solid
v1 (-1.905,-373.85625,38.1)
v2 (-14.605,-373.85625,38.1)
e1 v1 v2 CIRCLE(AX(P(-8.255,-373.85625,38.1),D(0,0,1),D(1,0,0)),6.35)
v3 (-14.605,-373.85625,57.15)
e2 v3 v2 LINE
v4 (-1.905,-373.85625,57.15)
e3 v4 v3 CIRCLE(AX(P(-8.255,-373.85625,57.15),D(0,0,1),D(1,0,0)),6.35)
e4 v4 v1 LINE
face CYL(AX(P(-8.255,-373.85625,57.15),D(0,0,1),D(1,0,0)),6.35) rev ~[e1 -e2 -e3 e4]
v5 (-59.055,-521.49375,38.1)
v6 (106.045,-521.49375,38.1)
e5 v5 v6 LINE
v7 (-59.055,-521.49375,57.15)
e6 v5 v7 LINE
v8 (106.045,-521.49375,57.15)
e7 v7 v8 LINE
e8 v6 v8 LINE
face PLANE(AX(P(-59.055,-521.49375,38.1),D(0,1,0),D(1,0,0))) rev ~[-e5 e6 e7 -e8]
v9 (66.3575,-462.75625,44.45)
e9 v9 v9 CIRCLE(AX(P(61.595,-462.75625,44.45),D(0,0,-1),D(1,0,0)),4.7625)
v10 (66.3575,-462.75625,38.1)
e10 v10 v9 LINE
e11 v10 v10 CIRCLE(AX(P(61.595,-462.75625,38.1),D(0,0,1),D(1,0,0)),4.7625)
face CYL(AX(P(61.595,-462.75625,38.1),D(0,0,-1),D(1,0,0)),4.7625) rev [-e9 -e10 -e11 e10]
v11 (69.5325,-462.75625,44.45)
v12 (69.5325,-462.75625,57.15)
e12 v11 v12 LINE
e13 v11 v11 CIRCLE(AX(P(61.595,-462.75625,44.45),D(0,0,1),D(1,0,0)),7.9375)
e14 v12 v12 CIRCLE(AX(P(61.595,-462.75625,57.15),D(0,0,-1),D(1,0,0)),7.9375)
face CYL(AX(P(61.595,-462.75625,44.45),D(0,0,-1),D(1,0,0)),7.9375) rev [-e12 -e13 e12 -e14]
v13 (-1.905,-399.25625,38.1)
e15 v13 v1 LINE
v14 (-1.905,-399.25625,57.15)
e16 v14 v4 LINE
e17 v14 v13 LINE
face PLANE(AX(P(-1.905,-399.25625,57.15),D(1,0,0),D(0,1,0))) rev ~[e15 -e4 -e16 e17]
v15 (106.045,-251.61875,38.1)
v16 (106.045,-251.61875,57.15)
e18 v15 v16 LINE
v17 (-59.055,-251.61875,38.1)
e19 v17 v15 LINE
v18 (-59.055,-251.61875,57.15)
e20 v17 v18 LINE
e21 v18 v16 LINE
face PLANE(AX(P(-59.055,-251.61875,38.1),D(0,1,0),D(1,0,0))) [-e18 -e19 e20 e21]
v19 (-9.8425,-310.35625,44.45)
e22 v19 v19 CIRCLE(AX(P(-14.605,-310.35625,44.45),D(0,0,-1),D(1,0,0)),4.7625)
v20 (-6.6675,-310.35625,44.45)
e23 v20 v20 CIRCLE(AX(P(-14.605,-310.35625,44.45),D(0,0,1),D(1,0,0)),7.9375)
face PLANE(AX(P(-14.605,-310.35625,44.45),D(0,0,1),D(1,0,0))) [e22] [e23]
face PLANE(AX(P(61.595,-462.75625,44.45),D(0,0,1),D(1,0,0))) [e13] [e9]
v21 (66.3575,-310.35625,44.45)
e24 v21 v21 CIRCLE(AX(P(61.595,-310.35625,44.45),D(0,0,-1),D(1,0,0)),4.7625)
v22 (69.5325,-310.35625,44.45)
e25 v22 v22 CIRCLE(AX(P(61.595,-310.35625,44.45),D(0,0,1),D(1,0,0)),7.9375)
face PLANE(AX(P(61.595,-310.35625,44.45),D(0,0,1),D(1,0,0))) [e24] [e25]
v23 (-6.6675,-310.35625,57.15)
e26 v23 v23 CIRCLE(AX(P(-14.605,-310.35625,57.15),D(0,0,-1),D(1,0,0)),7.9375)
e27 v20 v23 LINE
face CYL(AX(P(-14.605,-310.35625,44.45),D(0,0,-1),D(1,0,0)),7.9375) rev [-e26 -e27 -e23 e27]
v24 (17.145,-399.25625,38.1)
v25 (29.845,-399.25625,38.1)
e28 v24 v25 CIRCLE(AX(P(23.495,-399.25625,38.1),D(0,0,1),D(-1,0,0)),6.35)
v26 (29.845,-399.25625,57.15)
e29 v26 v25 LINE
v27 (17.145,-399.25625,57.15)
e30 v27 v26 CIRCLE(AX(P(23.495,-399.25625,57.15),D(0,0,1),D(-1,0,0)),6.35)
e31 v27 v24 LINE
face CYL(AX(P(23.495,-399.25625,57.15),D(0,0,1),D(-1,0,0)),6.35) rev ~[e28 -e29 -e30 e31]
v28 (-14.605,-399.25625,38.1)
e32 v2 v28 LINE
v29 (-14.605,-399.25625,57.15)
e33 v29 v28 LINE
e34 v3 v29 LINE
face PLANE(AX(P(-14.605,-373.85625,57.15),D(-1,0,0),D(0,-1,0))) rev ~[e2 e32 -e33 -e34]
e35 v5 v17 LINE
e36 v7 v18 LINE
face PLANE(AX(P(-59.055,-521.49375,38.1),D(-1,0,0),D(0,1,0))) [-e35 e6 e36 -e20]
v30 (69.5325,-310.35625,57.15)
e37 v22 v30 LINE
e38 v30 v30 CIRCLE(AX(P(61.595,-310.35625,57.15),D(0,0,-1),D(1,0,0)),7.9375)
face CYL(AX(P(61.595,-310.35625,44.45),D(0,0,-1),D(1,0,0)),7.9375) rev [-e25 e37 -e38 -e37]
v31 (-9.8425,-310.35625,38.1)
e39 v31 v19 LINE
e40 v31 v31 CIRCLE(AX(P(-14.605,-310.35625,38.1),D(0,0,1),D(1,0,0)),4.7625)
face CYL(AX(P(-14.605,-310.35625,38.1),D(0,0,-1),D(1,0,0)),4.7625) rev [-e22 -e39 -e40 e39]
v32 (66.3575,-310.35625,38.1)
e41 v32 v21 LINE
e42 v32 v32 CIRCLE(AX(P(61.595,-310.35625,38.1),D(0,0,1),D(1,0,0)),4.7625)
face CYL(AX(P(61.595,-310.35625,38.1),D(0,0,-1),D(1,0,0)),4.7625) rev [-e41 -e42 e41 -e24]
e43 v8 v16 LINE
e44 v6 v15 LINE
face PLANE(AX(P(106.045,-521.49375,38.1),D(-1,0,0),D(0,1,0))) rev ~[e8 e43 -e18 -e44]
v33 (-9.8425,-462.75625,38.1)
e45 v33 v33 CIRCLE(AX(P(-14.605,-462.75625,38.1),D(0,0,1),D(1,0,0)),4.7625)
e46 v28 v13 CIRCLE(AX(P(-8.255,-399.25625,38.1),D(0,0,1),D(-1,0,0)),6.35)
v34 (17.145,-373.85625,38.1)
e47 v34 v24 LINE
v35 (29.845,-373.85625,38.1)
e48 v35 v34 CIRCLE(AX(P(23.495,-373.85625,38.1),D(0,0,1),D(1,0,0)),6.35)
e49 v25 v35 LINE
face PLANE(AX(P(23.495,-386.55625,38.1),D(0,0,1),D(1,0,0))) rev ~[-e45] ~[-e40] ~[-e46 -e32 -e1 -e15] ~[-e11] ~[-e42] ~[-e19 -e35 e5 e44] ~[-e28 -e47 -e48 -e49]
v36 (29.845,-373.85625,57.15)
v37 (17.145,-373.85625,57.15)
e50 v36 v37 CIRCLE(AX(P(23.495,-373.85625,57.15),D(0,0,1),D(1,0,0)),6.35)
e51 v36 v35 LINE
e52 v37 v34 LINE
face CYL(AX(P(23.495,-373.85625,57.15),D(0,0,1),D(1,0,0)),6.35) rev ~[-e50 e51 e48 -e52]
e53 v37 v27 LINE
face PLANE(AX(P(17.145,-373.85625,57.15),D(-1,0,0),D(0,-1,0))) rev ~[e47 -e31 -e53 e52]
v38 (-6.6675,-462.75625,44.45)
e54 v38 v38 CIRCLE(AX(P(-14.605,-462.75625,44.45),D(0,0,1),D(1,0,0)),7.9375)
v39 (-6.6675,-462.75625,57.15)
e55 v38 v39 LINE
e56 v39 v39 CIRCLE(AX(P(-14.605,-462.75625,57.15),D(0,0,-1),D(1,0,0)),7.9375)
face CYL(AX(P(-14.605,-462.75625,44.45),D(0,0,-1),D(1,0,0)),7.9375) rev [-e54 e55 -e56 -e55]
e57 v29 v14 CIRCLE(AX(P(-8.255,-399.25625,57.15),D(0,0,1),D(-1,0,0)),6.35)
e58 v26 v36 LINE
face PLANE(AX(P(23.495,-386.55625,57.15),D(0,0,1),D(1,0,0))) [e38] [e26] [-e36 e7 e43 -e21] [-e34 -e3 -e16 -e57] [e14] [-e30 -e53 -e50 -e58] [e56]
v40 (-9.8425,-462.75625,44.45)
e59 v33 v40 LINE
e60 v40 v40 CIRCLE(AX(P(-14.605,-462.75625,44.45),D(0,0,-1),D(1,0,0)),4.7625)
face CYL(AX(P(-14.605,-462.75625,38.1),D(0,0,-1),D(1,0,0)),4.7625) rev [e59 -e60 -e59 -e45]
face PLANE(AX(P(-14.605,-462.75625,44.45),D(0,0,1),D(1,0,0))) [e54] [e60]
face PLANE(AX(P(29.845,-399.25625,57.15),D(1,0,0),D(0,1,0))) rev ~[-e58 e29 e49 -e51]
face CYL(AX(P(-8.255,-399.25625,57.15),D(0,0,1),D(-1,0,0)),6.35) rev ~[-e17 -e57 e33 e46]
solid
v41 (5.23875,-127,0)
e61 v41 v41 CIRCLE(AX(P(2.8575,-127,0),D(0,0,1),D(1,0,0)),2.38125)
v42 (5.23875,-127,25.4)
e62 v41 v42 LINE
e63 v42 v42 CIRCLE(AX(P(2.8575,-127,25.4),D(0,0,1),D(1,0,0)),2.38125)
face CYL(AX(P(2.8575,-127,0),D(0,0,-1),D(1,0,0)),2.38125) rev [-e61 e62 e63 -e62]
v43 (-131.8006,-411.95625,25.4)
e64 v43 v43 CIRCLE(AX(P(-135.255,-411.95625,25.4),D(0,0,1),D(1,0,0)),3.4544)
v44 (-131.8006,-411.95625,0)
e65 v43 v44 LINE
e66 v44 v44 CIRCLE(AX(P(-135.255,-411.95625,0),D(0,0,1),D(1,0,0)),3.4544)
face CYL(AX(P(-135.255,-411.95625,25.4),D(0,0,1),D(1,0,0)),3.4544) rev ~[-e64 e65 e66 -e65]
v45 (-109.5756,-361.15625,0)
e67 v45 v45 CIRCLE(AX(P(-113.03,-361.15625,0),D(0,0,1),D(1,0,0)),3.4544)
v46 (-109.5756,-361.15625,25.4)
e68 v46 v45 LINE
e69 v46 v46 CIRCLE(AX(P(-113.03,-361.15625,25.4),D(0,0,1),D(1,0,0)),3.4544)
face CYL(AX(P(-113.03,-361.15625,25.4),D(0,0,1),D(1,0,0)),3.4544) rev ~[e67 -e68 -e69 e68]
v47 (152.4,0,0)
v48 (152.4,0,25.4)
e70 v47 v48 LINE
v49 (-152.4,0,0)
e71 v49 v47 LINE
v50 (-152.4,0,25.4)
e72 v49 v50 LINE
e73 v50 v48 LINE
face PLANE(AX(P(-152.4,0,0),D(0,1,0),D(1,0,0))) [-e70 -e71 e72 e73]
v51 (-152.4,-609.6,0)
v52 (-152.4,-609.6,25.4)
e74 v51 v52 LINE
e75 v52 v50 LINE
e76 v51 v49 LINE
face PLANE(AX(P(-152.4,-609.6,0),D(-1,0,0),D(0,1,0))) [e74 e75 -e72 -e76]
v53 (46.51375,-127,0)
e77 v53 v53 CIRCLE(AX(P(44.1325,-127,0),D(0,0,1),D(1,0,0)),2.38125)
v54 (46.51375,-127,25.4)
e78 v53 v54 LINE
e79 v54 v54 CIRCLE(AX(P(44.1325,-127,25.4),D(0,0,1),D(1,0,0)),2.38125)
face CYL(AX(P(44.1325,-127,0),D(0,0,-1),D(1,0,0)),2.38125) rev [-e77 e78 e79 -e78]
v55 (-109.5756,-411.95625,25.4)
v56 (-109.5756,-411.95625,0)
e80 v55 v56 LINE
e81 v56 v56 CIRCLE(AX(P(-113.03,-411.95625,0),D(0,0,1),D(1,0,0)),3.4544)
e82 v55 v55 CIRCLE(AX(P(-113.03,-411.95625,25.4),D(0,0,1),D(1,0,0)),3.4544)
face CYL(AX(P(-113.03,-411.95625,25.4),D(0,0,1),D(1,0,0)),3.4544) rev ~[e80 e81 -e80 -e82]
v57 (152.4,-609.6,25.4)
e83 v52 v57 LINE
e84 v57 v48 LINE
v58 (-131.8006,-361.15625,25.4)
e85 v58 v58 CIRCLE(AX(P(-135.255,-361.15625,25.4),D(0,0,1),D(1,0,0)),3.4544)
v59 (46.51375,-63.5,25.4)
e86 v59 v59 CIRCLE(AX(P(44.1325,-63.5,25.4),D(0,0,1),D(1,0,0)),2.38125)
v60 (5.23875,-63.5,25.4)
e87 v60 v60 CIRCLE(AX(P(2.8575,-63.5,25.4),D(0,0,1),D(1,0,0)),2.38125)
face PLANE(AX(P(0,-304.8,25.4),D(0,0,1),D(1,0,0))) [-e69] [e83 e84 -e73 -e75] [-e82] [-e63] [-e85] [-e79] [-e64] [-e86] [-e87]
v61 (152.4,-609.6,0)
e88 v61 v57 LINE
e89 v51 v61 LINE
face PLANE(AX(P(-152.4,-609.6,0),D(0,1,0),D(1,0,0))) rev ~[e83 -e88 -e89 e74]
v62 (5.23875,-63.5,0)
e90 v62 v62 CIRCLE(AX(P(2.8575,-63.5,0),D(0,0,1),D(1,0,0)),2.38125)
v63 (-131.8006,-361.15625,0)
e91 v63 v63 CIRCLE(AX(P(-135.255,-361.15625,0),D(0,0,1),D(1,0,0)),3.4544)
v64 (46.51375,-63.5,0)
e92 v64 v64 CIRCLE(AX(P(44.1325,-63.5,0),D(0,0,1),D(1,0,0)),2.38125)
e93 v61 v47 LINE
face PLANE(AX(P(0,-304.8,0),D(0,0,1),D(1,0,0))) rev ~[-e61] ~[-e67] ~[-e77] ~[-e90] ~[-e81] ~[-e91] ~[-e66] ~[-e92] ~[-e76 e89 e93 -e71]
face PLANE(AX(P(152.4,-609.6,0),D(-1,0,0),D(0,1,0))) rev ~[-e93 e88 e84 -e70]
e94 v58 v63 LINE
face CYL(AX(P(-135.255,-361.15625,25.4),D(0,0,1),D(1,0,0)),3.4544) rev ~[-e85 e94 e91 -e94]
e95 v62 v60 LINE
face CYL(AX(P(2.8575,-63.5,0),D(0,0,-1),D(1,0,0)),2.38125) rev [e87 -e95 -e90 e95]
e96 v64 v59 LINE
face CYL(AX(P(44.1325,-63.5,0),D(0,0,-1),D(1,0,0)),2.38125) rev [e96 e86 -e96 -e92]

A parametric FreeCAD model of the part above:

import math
import FreeCAD as App
import Part
import Sketcher
Q = App.Units.Quantity


def add_polygon(sketch, points):
    """Adds a closed chain of lines whose ends are joined by coincident constraints."""
    first, n = sketch.GeometryCount, len(points)
    for a, b in zip(points, points[1:] + points[:1]):
        sketch.addGeometry(Part.LineSegment(App.Vector(*a, 0), App.Vector(*b, 0)), False)
    for i in range(n):
        sketch.addConstraint(Sketcher.Constraint("Coincident", first + i, 2, first + (i + 1) % n, 1))

doc = App.newDocument("Part")
body = doc.addObject("PartDesign::Body", "Body")

sketch1 = body.newObject("Sketcher::SketchObject", "Sketch")
sketch1.AttachmentSupport = (doc.getObject("XY_Plane"), [""])
sketch1.MapMode = "FlatFace"
add_polygon(sketch1, [(-152.4, 0), (-152.4, -609.6), (152.4, -609.6), (152.4, 0)])
sketch1.addGeometry(Part.Circle(App.Vector(2.9, -127, 0), App.Vector(0, 0, 1), 2.4), False)
sketch1.addGeometry(Part.Circle(App.Vector(44.1, -127, 0), App.Vector(0, 0, 1), 2.4), False)
sketch1.addGeometry(Part.Circle(App.Vector(2.9, -63.5, 0), App.Vector(0, 0, 1), 2.4), False)
sketch1.addGeometry(Part.Circle(App.Vector(44.1, -63.5, 0), App.Vector(0, 0, 1), 2.4), False)
sketch1.addConstraint(Sketcher.Constraint("Vertical", 0))
sketch1.addConstraint(Sketcher.Constraint("Horizontal", 1))
sketch1.addConstraint(Sketcher.Constraint("Vertical", 2))
sketch1.addConstraint(Sketcher.Constraint("Horizontal", 3))
sketch1.addConstraint(Sketcher.Constraint("Equal", 4, 5))
sketch1.addConstraint(Sketcher.Constraint("Equal", 5, 6))
sketch1.addConstraint(Sketcher.Constraint("Equal", 6, 7))
sketch1.addConstraint(Sketcher.Constraint("Symmetric", 2, 2, 3, 2, -1, 1))
sketch1.addConstraint(Sketcher.Constraint("Horizontal", 4, 3, 5, 3))
sketch1.addConstraint(Sketcher.Constraint("Horizontal", 6, 3, 7, 3))
sketch1.addConstraint(Sketcher.Constraint("Vertical", 4, 3, 6, 3))
sketch1.addConstraint(Sketcher.Constraint("Vertical", 5, 3, 7, 3))
sketch1.addConstraint(Sketcher.Constraint("DistanceX", 1, 1, 1, 2, Q("12 in")))
sketch1.addConstraint(Sketcher.Constraint("DistanceY", 0, 2, 0, 1, Q("24 in")))
sketch1.addConstraint(Sketcher.Constraint("Diameter", 4, Q("0.1875 in")))
sketch1.addConstraint(Sketcher.Constraint("DistanceY", 4, 3, -1, 1, Q("5 in")))
sketch1.addConstraint(Sketcher.Constraint("DistanceY", 6, 3, -1, 1, Q("2.5 in")))
sketch1.addConstraint(Sketcher.Constraint("DistanceX", 4, 3, 5, 3, Q("1.625 in")))
sketch1.addConstraint(Sketcher.Constraint("DistanceX", -1, 1, 4, 3, Q("0.1125 in")))
pad1 = body.newObject("PartDesign::Pad", "Pad")
pad1.Profile = sketch1
pad1.Length = Q("1 in")

sketch2 = body.newObject("Sketcher::SketchObject", "Sketch001")
sketch2.AttachmentSupport = (doc.getObject("XY_Plane"), [""])
sketch2.MapMode = "FlatFace"
sketch2.AttachmentOffset = App.Placement(App.Vector(0, 0, 1 * 25.4), App.Rotation())
sketch2.addGeometry(Part.Circle(App.Vector(-135.3, -361.2, 0), App.Vector(0, 0, 1), 3.5), False)
sketch2.addGeometry(Part.Circle(App.Vector(-113, -361.2, 0), App.Vector(0, 0, 1), 3.5), False)
sketch2.addGeometry(Part.Circle(App.Vector(-113, -412, 0), App.Vector(0, 0, 1), 3.5), False)
sketch2.addGeometry(Part.Circle(App.Vector(-135.3, -412, 0), App.Vector(0, 0, 1), 3.5), False)
sketch2.addConstraint(Sketcher.Constraint("Equal", 0, 1))
sketch2.addConstraint(Sketcher.Constraint("Equal", 1, 2))
sketch2.addConstraint(Sketcher.Constraint("Equal", 2, 3))
sketch2.addConstraint(Sketcher.Constraint("Horizontal", 0, 3, 1, 3))
sketch2.addConstraint(Sketcher.Constraint("Horizontal", 2, 3, 3, 3))
sketch2.addConstraint(Sketcher.Constraint("Vertical", 1, 3, 2, 3))
sketch2.addConstraint(Sketcher.Constraint("Vertical", 0, 3, 3, 3))
sketch2.addConstraint(Sketcher.Constraint("Diameter", 0, Q("0.272 in")))
sketch2.addConstraint(Sketcher.Constraint("DistanceY", 2, 3, 1, 3, Q("2 in")))
sketch2.addConstraint(Sketcher.Constraint("DistanceX", 1, 3, -1, 1, Q("4.45 in")))
sketch2.addConstraint(Sketcher.Constraint("DistanceX", 0, 3, -1, 1, Q("5.325 in")))
sketch2.addConstraint(Sketcher.Constraint("DistanceY", 0, 3, -1, 1, Q("14.21875 in")))
pocket1 = body.newObject("PartDesign::Pocket", "Pocket")
pocket1.Profile = sketch2
pocket1.Length = Q("1 in")
body2 = doc.addObject("PartDesign::Body", "Body001")

sketch3 = body2.newObject("Sketcher::SketchObject", "Sketch002")
sketch3.AttachmentSupport = (doc.getObject("XY_Plane001"), [""])
sketch3.MapMode = "FlatFace"
sketch3.AttachmentOffset = App.Placement(App.Vector(0, 0, 1.5 * 25.4), App.Rotation())
add_polygon(sketch3, [(-59.1, -251.6), (-59.1, -521.5), (106, -521.5), (106, -251.6)])
sketch3.addGeometry(Part.Circle(App.Vector(-14.6, -462.8, 0), App.Vector(0, 0, 1), 4.8), False)
sketch3.addGeometry(Part.Circle(App.Vector(61.6, -462.8, 0), App.Vector(0, 0, 1), 4.8), False)
sketch3.addGeometry(Part.Circle(App.Vector(-14.6, -310.4, 0), App.Vector(0, 0, 1), 4.8), False)
sketch3.addGeometry(Part.Circle(App.Vector(61.6, -310.4, 0), App.Vector(0, 0, 1), 4.8), False)
sketch3.addConstraint(Sketcher.Constraint("Vertical", 0))
sketch3.addConstraint(Sketcher.Constraint("Horizontal", 1))
sketch3.addConstraint(Sketcher.Constraint("Vertical", 2))
sketch3.addConstraint(Sketcher.Constraint("Horizontal", 3))
sketch3.addConstraint(Sketcher.Constraint("Equal", 4, 5))
sketch3.addConstraint(Sketcher.Constraint("Equal", 5, 6))
sketch3.addConstraint(Sketcher.Constraint("Equal", 6, 7))
sketch3.addConstraint(Sketcher.Constraint("Horizontal", 4, 3, 5, 3))
sketch3.addConstraint(Sketcher.Constraint("Horizontal", 6, 3, 7, 3))
sketch3.addConstraint(Sketcher.Constraint("Vertical", 4, 3, 6, 3))
sketch3.addConstraint(Sketcher.Constraint("Vertical", 5, 3, 7, 3))
sketch3.addConstraint(Sketcher.Constraint("Diameter", 4, Q("0.375 in")))
sketch3.addConstraint(Sketcher.Constraint("DistanceX", 1, 1, 1, 2, Q("6.5 in")))
sketch3.addConstraint(Sketcher.Constraint("DistanceX", 4, 3, 5, 3, Q("3 in")))
sketch3.addConstraint(Sketcher.Constraint("DistanceY", 4, 3, 6, 3, Q("6 in")))
sketch3.addConstraint(Sketcher.Constraint("DistanceY", 0, 2, 0, 1, Q("10.625 in")))
sketch3.addConstraint(Sketcher.Constraint("DistanceX", 0, 2, 4, 3, Q("1.75 in")))
sketch3.addConstraint(Sketcher.Constraint("DistanceX", 4, 3, -1, 1, Q("0.575 in")))
sketch3.addConstraint(Sketcher.Constraint("DistanceY", 4, 3, -1, 1, Q("18.21875 in")))
sketch3.addConstraint(Sketcher.Constraint("DistanceY", 0, 2, -1, 1, Q("20.53125 in")))
pad2 = body2.newObject("PartDesign::Pad", "Pad001")
pad2.Profile = sketch3
pad2.Length = Q("0.75 in")

sketch4 = body2.newObject("Sketcher::SketchObject", "Sketch003")
sketch4.AttachmentSupport = (doc.getObject("XY_Plane001"), [""])
sketch4.MapMode = "FlatFace"
sketch4.AttachmentOffset = App.Placement(App.Vector(0, 0, 1.75 * 25.4), App.Rotation())
sketch4.addGeometry(Part.Circle(App.Vector(-15, -310, 0), App.Vector(0, 0, 1), 8), False)
sketch4.addGeometry(Part.Circle(App.Vector(62, -310, 0), App.Vector(0, 0, 1), 8), False)
sketch4.addGeometry(Part.Circle(App.Vector(-15, -463, 0), App.Vector(0, 0, 1), 8), False)
sketch4.addGeometry(Part.Circle(App.Vector(62, -463, 0), App.Vector(0, 0, 1), 8), False)
sketch4.addConstraint(Sketcher.Constraint("Equal", 0, 1))
sketch4.addConstraint(Sketcher.Constraint("Equal", 1, 2))
sketch4.addConstraint(Sketcher.Constraint("Equal", 2, 3))
sketch4.addConstraint(Sketcher.Constraint("Horizontal", 0, 3, 1, 3))
sketch4.addConstraint(Sketcher.Constraint("Horizontal", 2, 3, 3, 3))
sketch4.addConstraint(Sketcher.Constraint("Vertical", 0, 3, 2, 3))
sketch4.addConstraint(Sketcher.Constraint("Vertical", 1, 3, 3, 3))
sketch4.addConstraint(Sketcher.Constraint("Diameter", 0, Q("0.625 in")))
sketch4.addConstraint(Sketcher.Constraint("DistanceX", 0, 3, 1, 3, Q("3 in")))
sketch4.addConstraint(Sketcher.Constraint("DistanceY", 2, 3, 0, 3, Q("6 in")))
sketch4.addConstraint(Sketcher.Constraint("DistanceX", 0, 3, -1, 1, Q("0.575 in")))
sketch4.addConstraint(Sketcher.Constraint("DistanceY", 0, 3, -1, 1, Q("12.21875 in")))
pocket2 = body2.newObject("PartDesign::Pocket", "Pocket001")
pocket2.Profile = sketch4
pocket2.Length = Q("9.25 in")
pocket2.Reversed = True

sketch5 = body2.newObject("Sketcher::SketchObject", "Sketch004")
sketch5.AttachmentSupport = (doc.getObject("XY_Plane001"), [""])
sketch5.MapMode = "FlatFace"
sketch5.AttachmentOffset = App.Placement(App.Vector(0, 0, 2.25 * 25.4), App.Rotation())
sketch5.addGeometry(Part.LineSegment(App.Vector(-2, -399, 0), App.Vector(-2, -374, 0)), False)
sketch5.addGeometry(Part.ArcOfCircle(Part.Circle(App.Vector(-8, -374, 0), App.Vector(0, 0, 1), 6), math.radians(0), math.radians(180)), False)
sketch5.addGeometry(Part.LineSegment(App.Vector(-15, -374, 0), App.Vector(-15, -399, 0)), False)
sketch5.addGeometry(Part.ArcOfCircle(Part.Circle(App.Vector(-8, -399, 0), App.Vector(0, 0, 1), 6), math.radians(180), math.radians(360)), False)
sketch5.addGeometry(Part.LineSegment(App.Vector(30, -399, 0), App.Vector(30, -374, 0)), False)
sketch5.addGeometry(Part.ArcOfCircle(Part.Circle(App.Vector(23, -374, 0), App.Vector(0, 0, 1), 6), math.radians(0), math.radians(180)), False)
sketch5.addGeometry(Part.LineSegment(App.Vector(17, -374, 0), App.Vector(17, -399, 0)), False)
sketch5.addGeometry(Part.ArcOfCircle(Part.Circle(App.Vector(23, -399, 0), App.Vector(0, 0, 1), 6), math.radians(180), math.radians(360)), False)
sketch5.addConstraint(Sketcher.Constraint("Tangent", 0, 2, 1, 1))
sketch5.addConstraint(Sketcher.Constraint("Tangent", 1, 2, 2, 1))
sketch5.addConstraint(Sketcher.Constraint("Tangent", 2, 2, 3, 1))
sketch5.addConstraint(Sketcher.Constraint("Tangent", 3, 2, 0, 1))
sketch5.addConstraint(Sketcher.Constraint("Tangent", 4, 2, 5, 1))
sketch5.addConstraint(Sketcher.Constraint("Tangent", 5, 2, 6, 1))
sketch5.addConstraint(Sketcher.Constraint("Tangent", 6, 2, 7, 1))
sketch5.addConstraint(Sketcher.Constraint("Tangent", 7, 2, 4, 1))
sketch5.addConstraint(Sketcher.Constraint("Vertical", 0))
sketch5.addConstraint(Sketcher.Constraint("Vertical", 2))
sketch5.addConstraint(Sketcher.Constraint("Vertical", 4))
sketch5.addConstraint(Sketcher.Constraint("Vertical", 6))
sketch5.addConstraint(Sketcher.Constraint("Equal", 3, 5))
sketch5.addConstraint(Sketcher.Constraint("Horizontal", 1, 3, 5, 3))
sketch5.addConstraint(Sketcher.Constraint("Horizontal", 3, 3, 7, 3))
sketch5.addConstraint(Sketcher.Constraint("DistanceY", 0, 1, 0, 2, Q("1 in")))
sketch5.addConstraint(Sketcher.Constraint("Radius", 1, Q("0.25 in")))
sketch5.addConstraint(Sketcher.Constraint("DistanceX", 0, 2, 5, 3, Q("1 in")))
sketch5.addConstraint(Sketcher.Constraint("DistanceX", 1, 3, -1, 1, Q("0.325 in")))
sketch5.addConstraint(Sketcher.Constraint("DistanceY", 1, 3, -1, 1, Q("14.71875 in")))
pocket3 = body2.newObject("PartDesign::Pocket", "Pocket002")
pocket3.Profile = sketch5
pocket3.Length = Q("1 in")

doc.recompute()
